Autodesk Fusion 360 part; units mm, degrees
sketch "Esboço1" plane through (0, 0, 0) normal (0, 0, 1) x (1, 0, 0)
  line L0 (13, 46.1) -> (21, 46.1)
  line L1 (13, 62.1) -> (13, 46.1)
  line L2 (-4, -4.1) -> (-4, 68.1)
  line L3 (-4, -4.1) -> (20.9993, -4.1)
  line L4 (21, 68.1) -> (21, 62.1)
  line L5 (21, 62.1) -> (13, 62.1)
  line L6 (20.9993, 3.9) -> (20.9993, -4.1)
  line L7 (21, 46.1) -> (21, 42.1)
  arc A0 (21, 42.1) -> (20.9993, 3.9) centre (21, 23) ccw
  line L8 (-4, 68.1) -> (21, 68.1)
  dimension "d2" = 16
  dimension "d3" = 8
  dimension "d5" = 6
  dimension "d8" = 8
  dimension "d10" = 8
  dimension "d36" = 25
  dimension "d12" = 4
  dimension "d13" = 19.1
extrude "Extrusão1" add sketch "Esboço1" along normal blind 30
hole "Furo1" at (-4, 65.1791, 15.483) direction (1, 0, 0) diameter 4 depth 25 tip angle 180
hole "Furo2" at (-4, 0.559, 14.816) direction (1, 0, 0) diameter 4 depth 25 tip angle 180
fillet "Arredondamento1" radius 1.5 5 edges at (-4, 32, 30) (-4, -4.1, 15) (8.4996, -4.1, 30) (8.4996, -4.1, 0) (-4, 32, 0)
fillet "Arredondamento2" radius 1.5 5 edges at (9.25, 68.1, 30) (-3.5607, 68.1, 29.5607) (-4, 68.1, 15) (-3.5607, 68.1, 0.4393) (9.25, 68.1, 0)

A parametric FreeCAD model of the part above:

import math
import FreeCAD as App
import Part
import Sketcher

V = App.Vector


def edges_at(feature, points):
    """Names of the edges that pass closest to the given points."""
    edges = feature.Shape.Edges
    near = lambda p: min(range(len(edges)), key=lambda i: edges[i].distToShape(Part.Vertex(*p))[0])
    return sorted({f"Edge{near(p) + 1}" for p in points})

doc = App.newDocument("Part")
body = doc.addObject("PartDesign::Body", "Body")

# Sketch on XY plane
sketch1 = doc.addObject("Sketcher::SketchObject", "Sketch")
body.addObject(sketch1)
sketch1.AttachmentSupport = (doc.XY_Plane, [""])
sketch1.MapMode = "FlatFace"
sketch1.addGeometry([
    Part.LineSegment(V(21, 46.1, 0), V(13, 46.1, 0)),  # 0
    Part.LineSegment(V(13, 46.1, 0), V(13, 62.1, 0)),  # 1
    Part.LineSegment(V(13, 62.1, 0), V(21, 62.1, 0)),  # 2
    Part.LineSegment(V(21, 62.1, 0), V(21, 68.1, 0)),  # 3
    Part.LineSegment(V(21, 68.1, 0), V(-4, 68.1, 0)),  # 4
    Part.LineSegment(V(-4, 68.1, 0), V(-4, -4.1, 0)),  # 5
    Part.LineSegment(V(-4, -4.1, 0), V(21, -4.1, 0)),  # 6
    Part.LineSegment(V(21, -4.1, 0), V(21, 3.9, 0)),  # 7
    Part.ArcOfCircle(Part.Circle(V(21, 23, 0), V(0, 0, 1), 19.1), math.radians(90), math.radians(270)),  # 8
    Part.LineSegment(V(21, 42.1, 0), V(21, 46.1, 0)),  # 9
], False)
sketch1.addConstraint([
    Sketcher.Constraint("Coincident", 0, 2, 1, 1),
    Sketcher.Constraint("Coincident", 1, 2, 2, 1),
    Sketcher.Constraint("Coincident", 2, 2, 3, 1),
    Sketcher.Constraint("Coincident", 3, 2, 4, 1),
    Sketcher.Constraint("Coincident", 4, 2, 5, 1),
    Sketcher.Constraint("Coincident", 5, 2, 6, 1),
    Sketcher.Constraint("Coincident", 6, 2, 7, 1),
    Sketcher.Constraint("Coincident", 7, 2, 8, 2),
    Sketcher.Constraint("Coincident", 8, 1, 9, 1),
    Sketcher.Constraint("Coincident", 9, 2, 0, 1),
    Sketcher.Constraint("Horizontal", 0),
    Sketcher.Constraint("Vertical", 1),
    Sketcher.Constraint("Horizontal", 2),
    Sketcher.Constraint("Vertical", 3),
    Sketcher.Constraint("Horizontal", 4),
    Sketcher.Constraint("Vertical", 5),
    Sketcher.Constraint("Horizontal", 6),
    Sketcher.Constraint("Vertical", 7),
    Sketcher.Constraint("Vertical", 9),
    Sketcher.Constraint("Vertical", 8, 3, 2, 2),
    Sketcher.Constraint("Vertical", 3, 2, 8, 1),
    Sketcher.Constraint("Equal", 2, 7),
    Sketcher.Constraint("Radius", 8, 19.1),
    Sketcher.Constraint("DistanceX", 0, 2, 0, 1, 8.0),
    Sketcher.Constraint("DistanceX", 4, 2, 4, 1, 25.0),
    Sketcher.Constraint("DistanceY", 1, 1, 1, 2, 16.0),
    Sketcher.Constraint("DistanceY", 3, 1, 3, 2, 6.0),
    Sketcher.Constraint("DistanceY", 9, 1, 9, 2, 4.0),
    Sketcher.Constraint("DistanceX", 4, 2, -1, 1, 4.0),
    Sketcher.Constraint("DistanceY", -1, 1, 8, 3, 23.0),
    Sketcher.Constraint("DistanceX", 6, 1, 6, 2, 24.9993),
])
pad1 = doc.addObject("PartDesign::Pad", "Pad")
body.addObject(pad1)
pad1.Profile = sketch1
pad1.Length = 30

# Sketch on YZ plane
sketch2 = doc.addObject("Sketcher::SketchObject", "Sketch001")
body.addObject(sketch2)
sketch2.AttachmentSupport = (doc.YZ_Plane, [""])
sketch2.MapMode = "FlatFace"
sketch2.AttachmentOffset = App.Placement(V(0, 0, -4), App.Rotation())
sketch2.addGeometry(Part.Circle(V(65.2, 15.5, 0), V(0, 0, 1), 2), False)
sketch2.addConstraint([
    Sketcher.Constraint("Diameter", 0, 4.0),
    Sketcher.Constraint("DistanceX", -1, 1, 0, 3, 65.179),
    Sketcher.Constraint("DistanceY", -1, 1, 0, 3, 15.483),
])
doc.recompute()
hole = doc.addObject("PartDesign::Hole", "Hole")
body.addObject(hole)
hole.Profile = sketch2
hole.ThreadType = "None"
hole.Diameter = 4
hole.DepthType = "Dimension"
hole.Depth = 25
hole.DrillPoint = "Flat"
hole.Reversed = True

# Sketch on YZ plane
sketch3 = doc.addObject("Sketcher::SketchObject", "Sketch002")
body.addObject(sketch3)
sketch3.AttachmentSupport = (doc.YZ_Plane, [""])
sketch3.MapMode = "FlatFace"
sketch3.AttachmentOffset = App.Placement(V(0, 0, -4), App.Rotation())
sketch3.addGeometry(Part.Circle(V(0.6, 14.8, 0), V(0, 0, 1), 2), False)
sketch3.addConstraint([
    Sketcher.Constraint("Diameter", 0, 4.0),
    Sketcher.Constraint("DistanceX", -1, 1, 0, 3, 0.559),
    Sketcher.Constraint("DistanceY", -1, 1, 0, 3, 14.816),
])
doc.recompute()
hole2 = doc.addObject("PartDesign::Hole", "Hole001")
body.addObject(hole2)
hole2.Profile = sketch3
hole2.ThreadType = "None"
hole2.Diameter = 4
hole2.DepthType = "Dimension"
hole2.Depth = 25
hole2.DrillPoint = "Flat"
hole2.Reversed = True
doc.recompute()

fillet = doc.addObject("PartDesign::Fillet", "Fillet")
body.addObject(fillet)
fillet.Base = (hole2, edges_at(hole2, [
    (-4, 32, 30),
    (-4, -4.1, 15),
    (8.5, -4.1, 30),
    (8.5, -4.1, 0),
    (-4, 32, 0),
]))
fillet.Radius = 1.5
doc.recompute()

fillet2 = doc.addObject("PartDesign::Fillet", "Fillet001")
body.addObject(fillet2)
fillet2.Base = (fillet, edges_at(fillet, [
    (9.25, 68.1, 30),
    (-3.561, 68.1, 29.561),
    (-4, 68.1, 15),
    (-3.561, 68.1, 0.439),
    (9.25, 68.1, 0),
]))
fillet2.Radius = 1.5

doc.recompute()
